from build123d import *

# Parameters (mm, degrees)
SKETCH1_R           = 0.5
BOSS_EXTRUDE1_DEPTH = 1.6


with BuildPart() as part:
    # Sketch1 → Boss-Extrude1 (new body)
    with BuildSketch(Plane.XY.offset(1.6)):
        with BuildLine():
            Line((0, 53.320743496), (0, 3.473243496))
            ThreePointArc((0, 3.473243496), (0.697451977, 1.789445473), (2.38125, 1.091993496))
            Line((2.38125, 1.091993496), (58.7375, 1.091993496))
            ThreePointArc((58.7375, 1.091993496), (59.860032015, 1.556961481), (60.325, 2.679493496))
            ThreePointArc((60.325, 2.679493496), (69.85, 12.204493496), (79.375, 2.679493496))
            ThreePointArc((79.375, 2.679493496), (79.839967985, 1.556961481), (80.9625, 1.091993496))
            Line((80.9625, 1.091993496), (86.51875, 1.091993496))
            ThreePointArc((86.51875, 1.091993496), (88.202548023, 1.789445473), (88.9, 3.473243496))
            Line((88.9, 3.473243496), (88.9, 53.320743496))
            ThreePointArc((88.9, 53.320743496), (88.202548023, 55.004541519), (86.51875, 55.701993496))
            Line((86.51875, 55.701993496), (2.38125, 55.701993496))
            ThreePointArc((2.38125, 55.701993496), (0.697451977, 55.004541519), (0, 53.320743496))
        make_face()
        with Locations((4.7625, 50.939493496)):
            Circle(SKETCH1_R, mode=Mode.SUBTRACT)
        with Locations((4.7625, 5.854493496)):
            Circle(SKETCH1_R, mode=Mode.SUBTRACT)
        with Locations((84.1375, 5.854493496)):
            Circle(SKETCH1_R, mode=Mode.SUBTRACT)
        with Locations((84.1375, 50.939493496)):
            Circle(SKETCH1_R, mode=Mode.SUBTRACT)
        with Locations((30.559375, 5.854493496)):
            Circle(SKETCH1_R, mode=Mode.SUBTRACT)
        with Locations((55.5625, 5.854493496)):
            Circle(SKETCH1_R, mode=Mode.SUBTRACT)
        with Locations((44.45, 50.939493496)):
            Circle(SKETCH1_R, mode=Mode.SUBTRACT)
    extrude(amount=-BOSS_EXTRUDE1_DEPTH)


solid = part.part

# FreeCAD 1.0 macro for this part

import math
import FreeCAD as App
import Part
import Sketcher

V = App.Vector
Q = App.Units.Quantity

doc = App.newDocument("Part")
body = doc.addObject("PartDesign::Body", "Body")

# Sketch on XY plane
sketch1 = body.newObject("Sketcher::SketchObject", "Sketch")
sketch1.AttachmentSupport = (doc.getObject("XY_Plane"), [""])
sketch1.MapMode = "FlatFace"
sketch1.AttachmentOffset = App.Placement(V(0, 0, 1.6), App.Rotation())
sketch1.addGeometry(Part.LineSegment(V(0, 53.3, 0), V(0, 3.5, 0)), False)
sketch1.addGeometry(Part.ArcOfCircle(Part.Circle(V(2.4, 3.5, 0), V(0, 0, 1), 2.4), math.radians(180), math.radians(270)), False)
sketch1.addGeometry(Part.LineSegment(V(2.4, 1.1, 0), V(58.7, 1.1, 0)), False)
sketch1.addGeometry(Part.ArcOfCircle(Part.Circle(V(58.7, 2.7, 0), V(0, 0, 1), 1.6), math.radians(-90), math.radians(0)), False)
sketch1.addGeometry(Part.ArcOfCircle(Part.Circle(V(69.8, 2.7, 0), V(0, 0, 1), 9.5), math.radians(0), math.radians(180)), False)
sketch1.addGeometry(Part.ArcOfCircle(Part.Circle(V(81, 2.7, 0), V(0, 0, 1), 1.6), math.radians(180), math.radians(270)), False)
sketch1.addGeometry(Part.LineSegment(V(81, 1.1, 0), V(86.5, 1.1, 0)), False)
sketch1.addGeometry(Part.ArcOfCircle(Part.Circle(V(86.5, 3.5, 0), V(0, 0, 1), 2.4), math.radians(-90), math.radians(0)), False)
sketch1.addGeometry(Part.LineSegment(V(88.9, 3.5, 0), V(88.9, 53.3, 0)), False)
sketch1.addGeometry(Part.ArcOfCircle(Part.Circle(V(86.5, 53.3, 0), V(0, 0, 1), 2.4), math.radians(0), math.radians(90)), False)
sketch1.addGeometry(Part.LineSegment(V(86.5, 55.7, 0), V(2.4, 55.7, 0)), False)
sketch1.addGeometry(Part.ArcOfCircle(Part.Circle(V(2.4, 53.3, 0), V(0, 0, 1), 2.4), math.radians(90), math.radians(180)), False)
sketch1.addGeometry(Part.Circle(V(4.8, 5.9, 0), V(0, 0, 1), 0.5), False)
sketch1.addGeometry(Part.Circle(V(30.6, 5.9, 0), V(0, 0, 1), 0.5), False)
sketch1.addGeometry(Part.Circle(V(55.6, 5.9, 0), V(0, 0, 1), 0.5), False)
sketch1.addGeometry(Part.Circle(V(84.1, 5.9, 0), V(0, 0, 1), 0.5), False)
sketch1.addGeometry(Part.Circle(V(4.8, 50.9, 0), V(0, 0, 1), 0.5), False)
sketch1.addGeometry(Part.Circle(V(44.5, 50.9, 0), V(0, 0, 1), 0.5), False)
sketch1.addGeometry(Part.Circle(V(84.1, 50.9, 0), V(0, 0, 1), 0.5), False)
sketch1.addConstraint(Sketcher.Constraint("Tangent", 0, 2, 1, 1))
sketch1.addConstraint(Sketcher.Constraint("Tangent", 1, 2, 2, 1))
sketch1.addConstraint(Sketcher.Constraint("Tangent", 2, 2, 3, 1))
sketch1.addConstraint(Sketcher.Constraint("Tangent", 3, 2, 4, 2))
sketch1.addConstraint(Sketcher.Constraint("Tangent", 4, 1, 5, 1))
sketch1.addConstraint(Sketcher.Constraint("Tangent", 5, 2, 6, 1))
sketch1.addConstraint(Sketcher.Constraint("Tangent", 6, 2, 7, 1))
sketch1.addConstraint(Sketcher.Constraint("Tangent", 7, 2, 8, 1))
sketch1.addConstraint(Sketcher.Constraint("Tangent", 8, 2, 9, 1))
sketch1.addConstraint(Sketcher.Constraint("Tangent", 9, 2, 10, 1))
sketch1.addConstraint(Sketcher.Constraint("Tangent", 10, 2, 11, 1))
sketch1.addConstraint(Sketcher.Constraint("Tangent", 11, 2, 0, 1))
sketch1.addConstraint(Sketcher.Constraint("Vertical", 0))
sketch1.addConstraint(Sketcher.Constraint("Horizontal", 2))
sketch1.addConstraint(Sketcher.Constraint("Horizontal", 6))
sketch1.addConstraint(Sketcher.Constraint("Vertical", 8))
sketch1.addConstraint(Sketcher.Constraint("Horizontal", 10))
sketch1.addConstraint(Sketcher.Constraint("Equal", 3, 5))
sketch1.addConstraint(Sketcher.Constraint("Equal", 1, 7))
sketch1.addConstraint(Sketcher.Constraint("Equal", 7, 9))
sketch1.addConstraint(Sketcher.Constraint("Equal", 9, 11))
sketch1.addConstraint(Sketcher.Constraint("Equal", 12, 13))
sketch1.addConstraint(Sketcher.Constraint("Equal", 13, 14))
sketch1.addConstraint(Sketcher.Constraint("Equal", 14, 15))
sketch1.addConstraint(Sketcher.Constraint("Equal", 15, 16))
sketch1.addConstraint(Sketcher.Constraint("Equal", 16, 17))
sketch1.addConstraint(Sketcher.Constraint("Equal", 17, 18))
sketch1.addConstraint(Sketcher.Constraint("PointOnObject", 0, 2, -2))
sketch1.addConstraint(Sketcher.Constraint("Horizontal", 3, 3, 4, 3))
sketch1.addConstraint(Sketcher.Constraint("Horizontal", 4, 3, 5, 3))
sketch1.addConstraint(Sketcher.Constraint("Horizontal", 12, 3, 13, 3))
sketch1.addConstraint(Sketcher.Constraint("Horizontal", 13, 3, 14, 3))
sketch1.addConstraint(Sketcher.Constraint("Horizontal", 14, 3, 15, 3))
sketch1.addConstraint(Sketcher.Constraint("Horizontal", 16, 3, 17, 3))
sketch1.addConstraint(Sketcher.Constraint("Horizontal", 17, 3, 18, 3))
sketch1.addConstraint(Sketcher.Constraint("Vertical", 12, 3, 16, 3))
sketch1.addConstraint(Sketcher.Constraint("Vertical", 15, 3, 18, 3))
sketch1.addConstraint(Sketcher.Constraint("Radius", 1, Q("0.09375 in")))
sketch1.addConstraint(Sketcher.Constraint("Radius", 3, Q("0.0625 in")))
sketch1.addConstraint(Sketcher.Constraint("Radius", 4, Q("0.375 in")))
sketch1.addConstraint(Sketcher.Constraint("DistanceX", 12, 3, 5, 3, Q("3 in")))
sketch1.addConstraint(Sketcher.Constraint("DistanceX", 14, 3, 5, 3, Q("1 in")))
sketch1.addConstraint(Sketcher.Constraint("DistanceX", 3, 3, 15, 3, Q("1 in")))
sketch1.addConstraint(Sketcher.Constraint("DistanceX", -1, 1, 7, 2, Q("3.5 in")))
sketch1.addConstraint(Sketcher.Constraint("DistanceY", 5, 3, 18, 3, Q("1.9 in")))
sketch1.addConstraint(Sketcher.Constraint("Diameter", 12, 1.0))
sketch1.addConstraint(Sketcher.Constraint("DistanceX", 2, 1, 2, 2, Q("2.21875 in")))
sketch1.addConstraint(Sketcher.Constraint("DistanceX", -1, 1, 17, 3, Q("1.75 in")))
sketch1.addConstraint(Sketcher.Constraint("DistanceY", 0, 2, 0, 1, Q("1.9625 in")))
sketch1.addConstraint(Sketcher.Constraint("DistanceX", -1, 1, 13, 3, Q("1.203125 in")))
sketch1.addConstraint(Sketcher.Constraint("DistanceY", 1, 3, 12, 3, Q("0.09375 in")))
sketch1.addConstraint(Sketcher.Constraint("DistanceY", -1, 1, 1, 3, 3.473243))
pad1 = body.newObject("PartDesign::Pad", "Pad")
pad1.Profile = sketch1
pad1.Length = 1.6
pad1.Reversed = True

doc.recompute()
